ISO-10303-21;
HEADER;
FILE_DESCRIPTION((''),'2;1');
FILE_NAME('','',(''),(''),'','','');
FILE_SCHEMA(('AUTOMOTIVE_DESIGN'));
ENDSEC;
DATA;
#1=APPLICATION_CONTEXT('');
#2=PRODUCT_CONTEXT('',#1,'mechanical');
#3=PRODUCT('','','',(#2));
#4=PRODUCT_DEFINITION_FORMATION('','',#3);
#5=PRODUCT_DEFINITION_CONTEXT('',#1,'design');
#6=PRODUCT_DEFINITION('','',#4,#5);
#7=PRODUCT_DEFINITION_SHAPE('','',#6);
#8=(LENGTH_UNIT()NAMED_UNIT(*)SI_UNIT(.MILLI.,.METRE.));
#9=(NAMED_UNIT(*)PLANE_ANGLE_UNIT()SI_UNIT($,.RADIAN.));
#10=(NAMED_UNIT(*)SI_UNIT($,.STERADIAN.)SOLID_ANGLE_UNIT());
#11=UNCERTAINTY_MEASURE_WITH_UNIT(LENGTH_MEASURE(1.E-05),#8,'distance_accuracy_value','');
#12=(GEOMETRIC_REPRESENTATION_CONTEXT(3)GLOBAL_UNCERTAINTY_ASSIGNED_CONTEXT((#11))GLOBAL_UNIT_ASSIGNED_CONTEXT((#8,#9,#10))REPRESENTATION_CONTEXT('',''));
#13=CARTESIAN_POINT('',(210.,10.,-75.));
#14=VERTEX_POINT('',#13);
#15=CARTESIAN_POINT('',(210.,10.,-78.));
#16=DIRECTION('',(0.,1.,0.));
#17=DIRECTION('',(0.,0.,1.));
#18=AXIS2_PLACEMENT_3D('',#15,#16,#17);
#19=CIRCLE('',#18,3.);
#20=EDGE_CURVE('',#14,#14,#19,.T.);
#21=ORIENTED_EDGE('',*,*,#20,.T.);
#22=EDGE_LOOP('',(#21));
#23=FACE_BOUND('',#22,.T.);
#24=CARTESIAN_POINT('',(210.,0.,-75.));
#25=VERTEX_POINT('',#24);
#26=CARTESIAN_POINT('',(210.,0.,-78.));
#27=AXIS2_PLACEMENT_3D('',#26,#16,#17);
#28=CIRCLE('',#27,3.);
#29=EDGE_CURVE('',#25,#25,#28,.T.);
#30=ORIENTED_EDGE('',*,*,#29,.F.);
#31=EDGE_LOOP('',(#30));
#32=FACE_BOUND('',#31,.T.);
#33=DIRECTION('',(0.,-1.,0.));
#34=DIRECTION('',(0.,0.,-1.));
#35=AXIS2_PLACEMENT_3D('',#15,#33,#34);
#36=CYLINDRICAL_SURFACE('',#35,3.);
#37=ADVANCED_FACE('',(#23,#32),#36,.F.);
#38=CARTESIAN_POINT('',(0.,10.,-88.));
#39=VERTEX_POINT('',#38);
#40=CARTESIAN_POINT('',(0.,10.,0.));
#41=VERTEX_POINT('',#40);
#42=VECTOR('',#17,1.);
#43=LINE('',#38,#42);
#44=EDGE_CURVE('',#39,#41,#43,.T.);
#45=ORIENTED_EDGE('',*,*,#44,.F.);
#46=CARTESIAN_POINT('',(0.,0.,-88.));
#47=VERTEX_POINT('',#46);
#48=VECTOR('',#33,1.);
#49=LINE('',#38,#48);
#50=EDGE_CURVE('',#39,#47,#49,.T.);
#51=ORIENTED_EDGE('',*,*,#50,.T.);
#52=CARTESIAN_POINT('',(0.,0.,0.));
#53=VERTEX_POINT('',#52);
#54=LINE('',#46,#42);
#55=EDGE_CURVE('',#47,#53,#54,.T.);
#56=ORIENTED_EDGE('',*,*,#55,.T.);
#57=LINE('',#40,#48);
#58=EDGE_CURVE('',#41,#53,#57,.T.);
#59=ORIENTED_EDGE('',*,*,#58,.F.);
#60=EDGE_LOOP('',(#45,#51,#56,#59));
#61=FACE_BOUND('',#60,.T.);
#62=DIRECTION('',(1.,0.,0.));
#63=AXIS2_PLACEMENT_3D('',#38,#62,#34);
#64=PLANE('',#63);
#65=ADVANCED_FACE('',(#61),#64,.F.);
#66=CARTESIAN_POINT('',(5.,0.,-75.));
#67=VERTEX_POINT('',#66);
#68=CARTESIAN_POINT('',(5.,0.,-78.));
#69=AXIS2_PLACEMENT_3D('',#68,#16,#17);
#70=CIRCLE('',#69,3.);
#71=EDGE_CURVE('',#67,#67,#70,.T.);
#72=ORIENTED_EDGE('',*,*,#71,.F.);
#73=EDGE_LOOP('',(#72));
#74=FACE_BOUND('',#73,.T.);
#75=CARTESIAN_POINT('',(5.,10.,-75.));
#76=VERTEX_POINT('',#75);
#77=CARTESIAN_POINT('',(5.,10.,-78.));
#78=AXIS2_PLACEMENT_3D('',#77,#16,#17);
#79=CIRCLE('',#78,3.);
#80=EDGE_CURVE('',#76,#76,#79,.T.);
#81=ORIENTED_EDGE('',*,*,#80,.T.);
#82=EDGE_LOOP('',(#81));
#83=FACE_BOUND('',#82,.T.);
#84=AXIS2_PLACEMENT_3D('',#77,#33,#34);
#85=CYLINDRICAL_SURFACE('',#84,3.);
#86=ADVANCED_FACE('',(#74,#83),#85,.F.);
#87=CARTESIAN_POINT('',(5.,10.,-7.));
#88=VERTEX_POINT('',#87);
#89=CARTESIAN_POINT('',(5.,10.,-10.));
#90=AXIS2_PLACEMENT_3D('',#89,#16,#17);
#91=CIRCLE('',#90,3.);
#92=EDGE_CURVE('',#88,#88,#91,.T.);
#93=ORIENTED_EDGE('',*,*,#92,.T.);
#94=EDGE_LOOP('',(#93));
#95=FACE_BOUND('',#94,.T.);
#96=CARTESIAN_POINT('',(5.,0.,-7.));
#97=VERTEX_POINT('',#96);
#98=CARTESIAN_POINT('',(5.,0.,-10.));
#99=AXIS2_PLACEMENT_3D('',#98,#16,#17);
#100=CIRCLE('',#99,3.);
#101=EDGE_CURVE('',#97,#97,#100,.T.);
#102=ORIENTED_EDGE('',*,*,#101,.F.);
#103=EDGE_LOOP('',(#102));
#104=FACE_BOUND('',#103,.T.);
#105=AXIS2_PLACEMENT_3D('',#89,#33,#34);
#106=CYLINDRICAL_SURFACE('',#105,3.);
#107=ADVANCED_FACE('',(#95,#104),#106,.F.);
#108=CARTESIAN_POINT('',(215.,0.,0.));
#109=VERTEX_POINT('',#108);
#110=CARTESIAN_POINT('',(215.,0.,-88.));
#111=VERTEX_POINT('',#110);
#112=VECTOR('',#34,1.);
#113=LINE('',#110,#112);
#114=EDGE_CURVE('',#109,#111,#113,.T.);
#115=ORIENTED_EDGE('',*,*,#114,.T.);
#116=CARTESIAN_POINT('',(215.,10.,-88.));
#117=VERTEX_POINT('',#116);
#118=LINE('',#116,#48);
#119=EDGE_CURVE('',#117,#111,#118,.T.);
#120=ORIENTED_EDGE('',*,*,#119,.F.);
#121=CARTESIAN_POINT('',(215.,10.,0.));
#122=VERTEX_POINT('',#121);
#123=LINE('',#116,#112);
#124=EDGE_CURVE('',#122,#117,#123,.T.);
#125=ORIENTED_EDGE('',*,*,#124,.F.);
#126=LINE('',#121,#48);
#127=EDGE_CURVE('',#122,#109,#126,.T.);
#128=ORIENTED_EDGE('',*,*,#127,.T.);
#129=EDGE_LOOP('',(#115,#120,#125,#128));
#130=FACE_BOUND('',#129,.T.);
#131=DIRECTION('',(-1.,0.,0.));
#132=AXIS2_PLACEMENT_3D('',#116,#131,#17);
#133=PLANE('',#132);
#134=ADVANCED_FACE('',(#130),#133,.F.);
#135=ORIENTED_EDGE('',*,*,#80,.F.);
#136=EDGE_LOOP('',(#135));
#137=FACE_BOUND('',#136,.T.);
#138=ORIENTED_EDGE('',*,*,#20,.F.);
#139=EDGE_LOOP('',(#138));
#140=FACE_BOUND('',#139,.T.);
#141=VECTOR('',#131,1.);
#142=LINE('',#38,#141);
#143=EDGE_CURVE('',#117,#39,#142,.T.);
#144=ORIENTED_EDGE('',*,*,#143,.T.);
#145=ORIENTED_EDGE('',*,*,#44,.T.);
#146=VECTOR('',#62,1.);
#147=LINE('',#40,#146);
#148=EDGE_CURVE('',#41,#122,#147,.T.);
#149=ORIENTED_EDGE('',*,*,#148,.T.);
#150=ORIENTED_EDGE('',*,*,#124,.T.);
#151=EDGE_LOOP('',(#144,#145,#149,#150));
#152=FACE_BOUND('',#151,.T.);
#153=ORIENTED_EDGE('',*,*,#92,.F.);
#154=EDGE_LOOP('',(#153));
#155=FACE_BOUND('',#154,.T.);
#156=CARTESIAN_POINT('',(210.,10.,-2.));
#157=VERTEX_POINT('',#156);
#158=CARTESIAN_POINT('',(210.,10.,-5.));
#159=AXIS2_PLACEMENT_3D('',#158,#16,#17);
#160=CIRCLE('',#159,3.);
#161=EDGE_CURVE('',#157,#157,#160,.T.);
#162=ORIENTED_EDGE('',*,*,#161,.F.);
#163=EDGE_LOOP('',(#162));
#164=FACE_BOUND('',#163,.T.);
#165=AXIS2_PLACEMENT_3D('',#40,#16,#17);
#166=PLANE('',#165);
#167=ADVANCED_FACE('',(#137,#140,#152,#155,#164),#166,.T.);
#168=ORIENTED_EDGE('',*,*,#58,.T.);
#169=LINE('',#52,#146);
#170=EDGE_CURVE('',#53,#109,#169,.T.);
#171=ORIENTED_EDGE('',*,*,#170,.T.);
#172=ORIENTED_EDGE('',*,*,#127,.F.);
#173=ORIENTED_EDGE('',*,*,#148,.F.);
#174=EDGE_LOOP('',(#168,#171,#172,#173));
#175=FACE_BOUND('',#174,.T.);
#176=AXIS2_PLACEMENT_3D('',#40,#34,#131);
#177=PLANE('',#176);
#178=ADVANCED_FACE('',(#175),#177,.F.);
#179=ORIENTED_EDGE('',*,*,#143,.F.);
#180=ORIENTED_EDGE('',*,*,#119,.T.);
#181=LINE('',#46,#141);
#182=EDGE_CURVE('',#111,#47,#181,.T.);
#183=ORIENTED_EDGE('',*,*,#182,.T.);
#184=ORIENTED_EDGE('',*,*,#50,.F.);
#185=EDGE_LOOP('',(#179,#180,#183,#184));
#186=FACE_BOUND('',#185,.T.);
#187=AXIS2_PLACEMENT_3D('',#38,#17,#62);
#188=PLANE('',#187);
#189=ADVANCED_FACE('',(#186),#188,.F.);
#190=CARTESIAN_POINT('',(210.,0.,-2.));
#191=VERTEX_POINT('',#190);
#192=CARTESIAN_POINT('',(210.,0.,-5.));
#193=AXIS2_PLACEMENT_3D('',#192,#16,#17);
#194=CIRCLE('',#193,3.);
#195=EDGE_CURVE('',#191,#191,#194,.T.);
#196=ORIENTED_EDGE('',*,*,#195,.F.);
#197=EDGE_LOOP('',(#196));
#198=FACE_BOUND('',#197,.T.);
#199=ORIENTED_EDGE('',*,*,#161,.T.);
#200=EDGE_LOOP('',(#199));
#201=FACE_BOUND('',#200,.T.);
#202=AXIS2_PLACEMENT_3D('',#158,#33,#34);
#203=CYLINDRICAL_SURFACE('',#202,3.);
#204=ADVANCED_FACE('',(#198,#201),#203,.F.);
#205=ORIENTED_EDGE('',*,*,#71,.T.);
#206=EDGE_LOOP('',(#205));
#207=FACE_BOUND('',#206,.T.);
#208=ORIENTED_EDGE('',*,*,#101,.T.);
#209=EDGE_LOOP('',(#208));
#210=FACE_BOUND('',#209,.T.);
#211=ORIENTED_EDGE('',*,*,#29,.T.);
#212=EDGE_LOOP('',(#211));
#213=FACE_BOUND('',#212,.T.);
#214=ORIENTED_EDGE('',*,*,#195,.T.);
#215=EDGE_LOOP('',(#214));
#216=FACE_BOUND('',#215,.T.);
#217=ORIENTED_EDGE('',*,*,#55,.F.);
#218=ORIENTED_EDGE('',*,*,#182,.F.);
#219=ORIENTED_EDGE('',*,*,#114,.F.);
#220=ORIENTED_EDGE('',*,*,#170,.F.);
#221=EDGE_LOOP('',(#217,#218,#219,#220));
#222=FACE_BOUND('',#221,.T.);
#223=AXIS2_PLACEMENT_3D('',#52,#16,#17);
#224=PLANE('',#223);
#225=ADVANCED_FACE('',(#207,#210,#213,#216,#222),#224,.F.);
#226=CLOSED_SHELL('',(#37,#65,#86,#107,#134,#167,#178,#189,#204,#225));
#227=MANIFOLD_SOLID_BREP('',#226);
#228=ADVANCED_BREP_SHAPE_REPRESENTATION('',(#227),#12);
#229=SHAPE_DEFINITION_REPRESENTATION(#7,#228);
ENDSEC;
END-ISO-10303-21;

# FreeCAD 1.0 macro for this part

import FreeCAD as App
import Part
import Sketcher

V = App.Vector
Q = App.Units.Quantity

doc = App.newDocument("Part")
body = doc.addObject("PartDesign::Body", "Body")

# Sketch on XZ plane
sketch1 = body.newObject("Sketcher::SketchObject", "Sketch")
sketch1.AttachmentSupport = (doc.getObject("XZ_Plane"), [""])
sketch1.MapMode = "FlatFace"
sketch1.addGeometry([
    Part.LineSegment(V(0, -88, 0), V(0, 0, 0)),  # 0
    Part.LineSegment(V(0, 0, 0), V(215, 0, 0)),  # 1
    Part.LineSegment(V(215, 0, 0), V(215, -88, 0)),  # 2
    Part.LineSegment(V(215, -88, 0), V(0, -88, 0)),  # 3
    Part.Circle(V(5, -10, 0), V(0, 0, 1), 3),  # 4
    Part.Circle(V(210, -5, 0), V(0, 0, 1), 3),  # 5
    Part.Circle(V(5, -78, 0), V(0, 0, 1), 3),  # 6
    Part.Circle(V(210, -78, 0), V(0, 0, 1), 3),  # 7
], False)
sketch1.addConstraint([
    Sketcher.Constraint("Coincident", 0, 2, 1, 1),
    Sketcher.Constraint("Coincident", 1, 2, 2, 1),
    Sketcher.Constraint("Coincident", 2, 2, 3, 1),
    Sketcher.Constraint("Coincident", 3, 2, 0, 1),
    Sketcher.Constraint("Vertical", 0),
    Sketcher.Constraint("Horizontal", 1),
    Sketcher.Constraint("Vertical", 2),
    Sketcher.Constraint("Horizontal", 3),
    Sketcher.Constraint("Coincident", 0, 2, -1, 1),
    Sketcher.Constraint("Equal", 4, 5),
    Sketcher.Constraint("Equal", 5, 6),
    Sketcher.Constraint("Equal", 6, 7),
    Sketcher.Constraint("Horizontal", 6, 3, 7, 3),
    Sketcher.Constraint("Vertical", 4, 3, 6, 3),
    Sketcher.Constraint("Vertical", 5, 3, 7, 3),
    Sketcher.Constraint("Diameter", 4, Q("6 mm")),
    Sketcher.Constraint("DistanceX", 1, 1, 1, 2, Q("215 mm")),
    Sketcher.Constraint("DistanceY", 0, 1, 0, 2, Q("88 mm")),
    Sketcher.Constraint("DistanceX", -1, 1, 4, 3, Q("5 mm")),
    Sketcher.Constraint("DistanceY", 4, 3, -1, 1, Q("10 mm")),
    Sketcher.Constraint("DistanceX", -1, 1, 5, 3, Q("210 mm")),
    Sketcher.Constraint("DistanceY", 5, 3, -1, 1, Q("5 mm")),
    Sketcher.Constraint("DistanceY", 6, 3, -1, 1, Q("78 mm")),
])
pad1 = body.newObject("PartDesign::Pad", "Pad")
pad1.Profile = sketch1
pad1.Length = 10
pad1.Reversed = True

doc.recompute()
